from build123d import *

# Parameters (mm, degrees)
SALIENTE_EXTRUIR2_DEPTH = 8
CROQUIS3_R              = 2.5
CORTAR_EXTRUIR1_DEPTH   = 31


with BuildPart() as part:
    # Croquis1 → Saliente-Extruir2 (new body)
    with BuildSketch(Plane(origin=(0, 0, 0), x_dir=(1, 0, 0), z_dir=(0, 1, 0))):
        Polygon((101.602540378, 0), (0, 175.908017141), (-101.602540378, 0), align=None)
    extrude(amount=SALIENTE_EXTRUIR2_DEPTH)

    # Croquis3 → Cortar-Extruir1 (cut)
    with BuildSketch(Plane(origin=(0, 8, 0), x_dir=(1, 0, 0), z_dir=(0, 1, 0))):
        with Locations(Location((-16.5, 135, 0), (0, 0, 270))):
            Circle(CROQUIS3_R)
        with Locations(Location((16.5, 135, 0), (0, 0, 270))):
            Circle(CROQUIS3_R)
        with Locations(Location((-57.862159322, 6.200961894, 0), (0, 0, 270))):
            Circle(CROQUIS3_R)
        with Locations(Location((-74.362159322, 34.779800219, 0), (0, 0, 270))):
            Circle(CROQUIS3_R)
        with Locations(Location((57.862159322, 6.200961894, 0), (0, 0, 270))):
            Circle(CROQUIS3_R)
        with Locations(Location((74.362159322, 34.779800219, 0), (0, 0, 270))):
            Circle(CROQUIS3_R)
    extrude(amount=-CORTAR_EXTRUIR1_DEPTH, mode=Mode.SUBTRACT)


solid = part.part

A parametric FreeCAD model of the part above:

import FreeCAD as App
import Part
import Sketcher
from FreeCAD import Vector
Q = App.Units.Quantity

doc = App.newDocument("Part")
body = doc.addObject("PartDesign::Body", "Body")

sketch1 = body.newObject("Sketcher::SketchObject", "Sketch")
sketch1.AttachmentSupport = (doc.getObject("XZ_Plane"), [""])
sketch1.MapMode = "FlatFace"
sketch1.addGeometry([
    Part.LineSegment(Vector(102, 0, 0), Vector(0, -176, 0)),
    Part.LineSegment(Vector(0, -176, 0), Vector(-102, 0, 0)),
    Part.LineSegment(Vector(-102, 0, 0), Vector(102, 0, 0)),
], False)
sketch1.addConstraint([
    Sketcher.Constraint("Coincident", 0, 2, 1, 1),
    Sketcher.Constraint("Coincident", 1, 2, 2, 1),
    Sketcher.Constraint("Coincident", 2, 2, 0, 1),
    Sketcher.Constraint("Horizontal", 2),
    Sketcher.Constraint("Symmetric", 1, 2, 2, 2, -1, 1),
    Sketcher.Constraint("PointOnObject", 0, 2, -2),
    Sketcher.Constraint("DistanceX", 2, 1, 2, 2, Q("203.205081 mm")),
    Sketcher.Constraint("Distance", 0, Q("203.142085 mm")),
])
pad1 = body.newObject("PartDesign::Pad", "Pad")
pad1.Profile = sketch1
pad1.Length = 8
pad1.Reversed = True

sketch2 = body.newObject("Sketcher::SketchObject", "Sketch001")
sketch2.AttachmentSupport = (doc.getObject("XZ_Plane"), [""])
sketch2.MapMode = "FlatFace"
sketch2.AttachmentOffset = App.Placement(Vector(0, 0, -8), App.Rotation())
sketch2.addGeometry([
    Part.Circle(Vector(-16.5, -135, 0), Vector(0, 0, 1), 2.5),
    Part.Circle(Vector(16.5, -135, 0), Vector(0, 0, 1), 2.5),
    Part.Circle(Vector(-57.9, -6.2, 0), Vector(0, 0, 1), 2.5),
    Part.Circle(Vector(-74.4, -34.8, 0), Vector(0, 0, 1), 2.5),
    Part.Circle(Vector(57.9, -6.2, 0), Vector(0, 0, 1), 2.5),
    Part.Circle(Vector(74.4, -34.8, 0), Vector(0, 0, 1), 2.5),
], False)
sketch2.addConstraint([
    Sketcher.Constraint("Equal", 0, 1),
    Sketcher.Constraint("Equal", 1, 2),
    Sketcher.Constraint("Equal", 2, 3),
    Sketcher.Constraint("Equal", 3, 4),
    Sketcher.Constraint("Equal", 4, 5),
    Sketcher.Constraint("Symmetric", 0, 3, 1, 3, -2),
    Sketcher.Constraint("Symmetric", 2, 3, 4, 3, -2),
    Sketcher.Constraint("Symmetric", 3, 3, 5, 3, -2),
    Sketcher.Constraint("Diameter", 0, Q("5 mm")),
    Sketcher.Constraint("DistanceY", 0, 3, -1, 1, Q("135 mm")),
    Sketcher.Constraint("DistanceX", 0, 3, 1, 3, Q("33 mm")),
    Sketcher.Constraint("DistanceX", 3, 3, 2, 3, Q("16.5 mm")),
    Sketcher.Constraint("DistanceY", 3, 3, -1, 1, Q("34.7798 mm")),
    Sketcher.Constraint("DistanceX", 2, 3, -1, 1, Q("57.862159 mm")),
    Sketcher.Constraint("DistanceY", 2, 3, -1, 1, Q("6.200962 mm")),
])
pocket1 = body.newObject("PartDesign::Pocket", "Pocket")
pocket1.Profile = sketch2
pocket1.Length = 31
pocket1.Reversed = True

doc.recompute()
